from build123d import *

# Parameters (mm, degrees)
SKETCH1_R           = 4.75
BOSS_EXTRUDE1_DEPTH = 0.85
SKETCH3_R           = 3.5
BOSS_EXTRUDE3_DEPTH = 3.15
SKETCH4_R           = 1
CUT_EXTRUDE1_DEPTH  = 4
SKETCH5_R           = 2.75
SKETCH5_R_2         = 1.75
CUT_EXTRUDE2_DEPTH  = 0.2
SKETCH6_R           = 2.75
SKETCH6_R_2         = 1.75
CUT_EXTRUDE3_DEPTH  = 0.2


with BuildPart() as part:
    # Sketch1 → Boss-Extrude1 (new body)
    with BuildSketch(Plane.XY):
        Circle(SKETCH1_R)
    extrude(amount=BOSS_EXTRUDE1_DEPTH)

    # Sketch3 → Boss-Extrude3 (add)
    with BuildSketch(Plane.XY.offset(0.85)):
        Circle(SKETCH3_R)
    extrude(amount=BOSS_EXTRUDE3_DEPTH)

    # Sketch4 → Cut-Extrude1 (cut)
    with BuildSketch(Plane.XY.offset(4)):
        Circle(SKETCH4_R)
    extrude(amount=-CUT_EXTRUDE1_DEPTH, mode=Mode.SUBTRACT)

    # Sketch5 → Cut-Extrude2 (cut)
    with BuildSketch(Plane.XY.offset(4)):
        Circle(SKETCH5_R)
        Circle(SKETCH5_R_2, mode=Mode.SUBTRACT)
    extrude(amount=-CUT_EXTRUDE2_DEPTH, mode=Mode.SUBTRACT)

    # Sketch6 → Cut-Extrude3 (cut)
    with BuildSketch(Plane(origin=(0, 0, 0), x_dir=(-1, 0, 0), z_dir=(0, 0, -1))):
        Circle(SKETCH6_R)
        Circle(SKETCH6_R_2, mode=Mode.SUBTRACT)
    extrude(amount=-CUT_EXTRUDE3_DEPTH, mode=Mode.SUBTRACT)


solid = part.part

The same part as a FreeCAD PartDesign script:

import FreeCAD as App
import Part
import Sketcher
from FreeCAD import Vector
Q = App.Units.Quantity

doc = App.newDocument("Part")
body = doc.addObject("PartDesign::Body", "Body")

sketch1 = doc.addObject("Sketcher::SketchObject", "Sketch")
body.addObject(sketch1)
sketch1.AttachmentSupport = (doc.XY_Plane, [""])
sketch1.MapMode = "FlatFace"
sketch1.addGeometry(Part.Circle(Vector(0, 0, 0), Vector(0, 0, 1), 4.75), False)
sketch1.addConstraint([
    Sketcher.Constraint("Coincident", 0, 3, -1, 1),
    Sketcher.Constraint("Diameter", 0, Q("9.5 mm")),
])
pad1 = doc.addObject("PartDesign::Pad", "Pad")
body.addObject(pad1)
pad1.Profile = sketch1
pad1.Length = 0.85

sketch2 = doc.addObject("Sketcher::SketchObject", "Sketch001")
body.addObject(sketch2)
sketch2.AttachmentSupport = (doc.XY_Plane, [""])
sketch2.MapMode = "FlatFace"
sketch2.AttachmentOffset = App.Placement(Vector(0, 0, 0.85), App.Rotation())
sketch2.addGeometry(Part.Circle(Vector(0, 0, 0), Vector(0, 0, 1), 3.5), False)
sketch2.addConstraint([
    Sketcher.Constraint("Coincident", 0, 3, -1, 1),
    Sketcher.Constraint("Diameter", 0, Q("7 mm")),
])
pad2 = doc.addObject("PartDesign::Pad", "Pad001")
body.addObject(pad2)
pad2.Profile = sketch2
pad2.Length = 3.15

sketch3 = doc.addObject("Sketcher::SketchObject", "Sketch002")
body.addObject(sketch3)
sketch3.AttachmentSupport = (doc.XY_Plane, [""])
sketch3.MapMode = "FlatFace"
sketch3.AttachmentOffset = App.Placement(Vector(0, 0, 4), App.Rotation())
sketch3.addGeometry(Part.Circle(Vector(0, 0, 0), Vector(0, 0, 1), 1), False)
sketch3.addConstraint([
    Sketcher.Constraint("Coincident", 0, 3, -1, 1),
    Sketcher.Constraint("Diameter", 0, Q("2 mm")),
])
pocket1 = doc.addObject("PartDesign::Pocket", "Pocket")
body.addObject(pocket1)
pocket1.Profile = sketch3
pocket1.Length = 4

sketch4 = doc.addObject("Sketcher::SketchObject", "Sketch003")
body.addObject(sketch4)
sketch4.AttachmentSupport = (doc.XY_Plane, [""])
sketch4.MapMode = "FlatFace"
sketch4.AttachmentOffset = App.Placement(Vector(0, 0, 4), App.Rotation())
sketch4.addGeometry([
    Part.Circle(Vector(0, 0, 0), Vector(0, 0, 1), 2.75),
    Part.Circle(Vector(0, 0, 0), Vector(0, 0, 1), 1.75),
], False)
sketch4.addConstraint([
    Sketcher.Constraint("Coincident", 0, 3, -1, 1),
    Sketcher.Constraint("Coincident", 1, 3, -1, 1),
    Sketcher.Constraint("Diameter", 0, Q("5.5 mm")),
    Sketcher.Constraint("Diameter", 1, Q("3.5 mm")),
])
pocket2 = doc.addObject("PartDesign::Pocket", "Pocket001")
body.addObject(pocket2)
pocket2.Profile = sketch4
pocket2.Length = 0.2

sketch5 = doc.addObject("Sketcher::SketchObject", "Sketch004")
body.addObject(sketch5)
sketch5.AttachmentSupport = (doc.XY_Plane, [""])
sketch5.MapMode = "FlatFace"
sketch5.addGeometry([
    Part.Circle(Vector(0, 0, 0), Vector(0, 0, 1), 2.75),
    Part.Circle(Vector(0, 0, 0), Vector(0, 0, 1), 1.75),
], False)
sketch5.addConstraint([
    Sketcher.Constraint("Coincident", 0, 3, -1, 1),
    Sketcher.Constraint("Coincident", 1, 3, -1, 1),
    Sketcher.Constraint("Diameter", 0, Q("5.5 mm")),
    Sketcher.Constraint("Diameter", 1, Q("3.5 mm")),
])
pocket3 = doc.addObject("PartDesign::Pocket", "Pocket002")
body.addObject(pocket3)
pocket3.Profile = sketch5
pocket3.Length = 0.2
pocket3.Reversed = True

doc.recompute()
